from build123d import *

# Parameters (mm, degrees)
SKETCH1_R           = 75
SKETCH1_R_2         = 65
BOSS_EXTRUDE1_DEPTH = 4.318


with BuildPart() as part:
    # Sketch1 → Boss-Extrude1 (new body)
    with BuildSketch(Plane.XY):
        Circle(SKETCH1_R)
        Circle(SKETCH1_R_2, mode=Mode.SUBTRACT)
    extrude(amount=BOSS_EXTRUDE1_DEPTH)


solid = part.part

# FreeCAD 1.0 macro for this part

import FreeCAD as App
import Part
import Sketcher
from FreeCAD import Vector
Q = App.Units.Quantity

doc = App.newDocument("Part")
params = doc.addObject("Spreadsheet::Sheet", "Params")
for row, (alias, value) in enumerate([
    ("sketch1_diameter", "150 mm"),
    ("sketch1_diameter2", "130 mm"),
    ("pad1_length", "4.318 mm"),
], start=1):
    params.set(f"A{row}", alias)
    params.set(f"B{row}", "=" + value)
    params.setAlias(f"B{row}", alias)

body = doc.addObject("PartDesign::Body", "Body")

sketch1 = body.newObject("Sketcher::SketchObject", "Sketch")
sketch1.AttachmentSupport = (doc.getObject("XY_Plane"), [""])
sketch1.MapMode = "FlatFace"
sketch1.addGeometry(Part.Circle(Vector(0, 0, 0), Vector(0, 0, 1), 75), False)
sketch1.addGeometry(Part.Circle(Vector(0, 0, 0), Vector(0, 0, 1), 65), False)
sketch1.addConstraint(Sketcher.Constraint("Coincident", 0, 3, -1, 1))
sketch1.addConstraint(Sketcher.Constraint("Coincident", 1, 3, -1, 1))
sketch1.addConstraint(Sketcher.Constraint("Diameter", 0, Q("150 mm")))
sketch1.addConstraint(Sketcher.Constraint("Diameter", 1, Q("130 mm")))
sketch1.setExpression("Constraints[2]", "Params.sketch1_diameter")
sketch1.setExpression("Constraints[3]", "Params.sketch1_diameter2")
pad1 = body.newObject("PartDesign::Pad", "Pad")
pad1.Profile = sketch1
pad1.setExpression("Length", "Params.pad1_length")

doc.recompute()
